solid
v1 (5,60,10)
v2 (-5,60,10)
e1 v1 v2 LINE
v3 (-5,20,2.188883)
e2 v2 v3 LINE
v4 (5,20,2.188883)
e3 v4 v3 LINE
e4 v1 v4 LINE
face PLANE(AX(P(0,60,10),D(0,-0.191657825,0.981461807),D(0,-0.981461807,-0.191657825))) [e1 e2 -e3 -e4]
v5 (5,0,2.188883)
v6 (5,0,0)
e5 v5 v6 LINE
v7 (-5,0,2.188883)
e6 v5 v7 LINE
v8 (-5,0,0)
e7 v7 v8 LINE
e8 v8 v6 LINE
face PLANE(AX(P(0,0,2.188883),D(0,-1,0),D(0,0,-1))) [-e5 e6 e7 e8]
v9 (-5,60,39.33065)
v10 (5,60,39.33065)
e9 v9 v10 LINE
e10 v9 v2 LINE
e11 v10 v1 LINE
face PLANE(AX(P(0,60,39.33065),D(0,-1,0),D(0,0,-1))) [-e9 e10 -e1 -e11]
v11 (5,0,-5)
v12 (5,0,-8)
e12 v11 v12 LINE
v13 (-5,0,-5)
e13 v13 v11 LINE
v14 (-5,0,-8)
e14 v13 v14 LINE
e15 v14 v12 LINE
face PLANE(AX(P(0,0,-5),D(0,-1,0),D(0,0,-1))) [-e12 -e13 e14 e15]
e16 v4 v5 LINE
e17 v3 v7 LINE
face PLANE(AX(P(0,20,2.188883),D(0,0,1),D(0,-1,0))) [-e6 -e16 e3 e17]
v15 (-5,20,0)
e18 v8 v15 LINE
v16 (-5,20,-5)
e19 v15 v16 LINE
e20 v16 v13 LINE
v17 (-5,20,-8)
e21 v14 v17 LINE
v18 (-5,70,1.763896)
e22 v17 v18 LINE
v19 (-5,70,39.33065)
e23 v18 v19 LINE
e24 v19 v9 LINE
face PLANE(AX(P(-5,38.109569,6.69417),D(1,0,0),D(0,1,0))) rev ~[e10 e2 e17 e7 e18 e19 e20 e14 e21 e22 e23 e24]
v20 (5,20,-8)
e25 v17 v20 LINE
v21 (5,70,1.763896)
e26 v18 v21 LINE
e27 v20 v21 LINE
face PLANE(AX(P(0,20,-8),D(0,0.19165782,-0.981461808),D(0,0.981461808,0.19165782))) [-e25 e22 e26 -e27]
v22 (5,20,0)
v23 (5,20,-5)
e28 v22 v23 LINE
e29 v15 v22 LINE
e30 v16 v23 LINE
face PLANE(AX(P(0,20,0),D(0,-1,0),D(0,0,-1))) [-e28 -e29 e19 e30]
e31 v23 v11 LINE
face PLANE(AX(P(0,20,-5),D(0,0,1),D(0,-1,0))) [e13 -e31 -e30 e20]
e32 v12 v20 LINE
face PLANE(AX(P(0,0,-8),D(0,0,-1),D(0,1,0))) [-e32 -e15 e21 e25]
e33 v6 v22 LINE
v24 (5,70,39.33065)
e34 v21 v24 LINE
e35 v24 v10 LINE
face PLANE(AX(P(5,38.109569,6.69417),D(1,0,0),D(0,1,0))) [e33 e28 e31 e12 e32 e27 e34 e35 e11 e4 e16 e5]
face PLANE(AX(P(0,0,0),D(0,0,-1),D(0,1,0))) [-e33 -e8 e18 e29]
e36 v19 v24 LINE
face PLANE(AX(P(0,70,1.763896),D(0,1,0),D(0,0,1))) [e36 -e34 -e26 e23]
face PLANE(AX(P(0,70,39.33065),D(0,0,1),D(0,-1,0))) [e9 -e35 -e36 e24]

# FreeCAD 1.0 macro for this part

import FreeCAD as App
import Part
import Sketcher
from FreeCAD import Vector
Q = App.Units.Quantity

doc = App.newDocument("Part")
body = doc.addObject("PartDesign::Body", "Body")

# Sketch on YZ plane
sketch1 = body.newObject("Sketcher::SketchObject", "Sketch")
sketch1.AttachmentSupport = (doc.getObject("YZ_Plane"), [""])
sketch1.MapMode = "FlatFace"
sketch1.addGeometry(Part.LineSegment(Vector(0, 2.188883, 0), Vector(0, 0, 0)), False)
sketch1.addGeometry(Part.LineSegment(Vector(0, 0, 0), Vector(20, 0, 0)), False)
sketch1.addGeometry(Part.LineSegment(Vector(20, 0, 0), Vector(20, -5, 0)), False)
sketch1.addGeometry(Part.LineSegment(Vector(20, -5, 0), Vector(0, -5, 0)), False)
sketch1.addGeometry(Part.LineSegment(Vector(0, -5, 0), Vector(0, -8, 0)), False)
sketch1.addGeometry(Part.LineSegment(Vector(0, -8, 0), Vector(20, -8, 0)), False)
sketch1.addGeometry(Part.LineSegment(Vector(20, -8, 0), Vector(70, 1.763896, 0)), False)
sketch1.addGeometry(Part.LineSegment(Vector(70, 1.763896, 0), Vector(70, 39.33065, 0)), False)
sketch1.addGeometry(Part.LineSegment(Vector(70, 39.33065, 0), Vector(60, 39.33065, 0)), False)
sketch1.addGeometry(Part.LineSegment(Vector(60, 39.33065, 0), Vector(60, 10, 0)), False)
sketch1.addGeometry(Part.LineSegment(Vector(60, 10, 0), Vector(20, 2.188883, 0)), False)
sketch1.addGeometry(Part.LineSegment(Vector(20, 2.188883, 0), Vector(0, 2.188883, 0)), False)
sketch1.addConstraint(Sketcher.Constraint("Coincident", 0, 2, 1, 1))
sketch1.addConstraint(Sketcher.Constraint("Coincident", 1, 2, 2, 1))
sketch1.addConstraint(Sketcher.Constraint("Coincident", 2, 2, 3, 1))
sketch1.addConstraint(Sketcher.Constraint("Coincident", 3, 2, 4, 1))
sketch1.addConstraint(Sketcher.Constraint("Coincident", 4, 2, 5, 1))
sketch1.addConstraint(Sketcher.Constraint("Coincident", 5, 2, 6, 1))
sketch1.addConstraint(Sketcher.Constraint("Coincident", 6, 2, 7, 1))
sketch1.addConstraint(Sketcher.Constraint("Coincident", 7, 2, 8, 1))
sketch1.addConstraint(Sketcher.Constraint("Coincident", 8, 2, 9, 1))
sketch1.addConstraint(Sketcher.Constraint("Coincident", 9, 2, 10, 1))
sketch1.addConstraint(Sketcher.Constraint("Coincident", 10, 2, 11, 1))
sketch1.addConstraint(Sketcher.Constraint("Coincident", 11, 2, 0, 1))
sketch1.addConstraint(Sketcher.Constraint("Vertical", 0))
sketch1.addConstraint(Sketcher.Constraint("Horizontal", 1))
sketch1.addConstraint(Sketcher.Constraint("Vertical", 2))
sketch1.addConstraint(Sketcher.Constraint("Horizontal", 3))
sketch1.addConstraint(Sketcher.Constraint("Vertical", 4))
sketch1.addConstraint(Sketcher.Constraint("Horizontal", 5))
sketch1.addConstraint(Sketcher.Constraint("Vertical", 7))
sketch1.addConstraint(Sketcher.Constraint("Horizontal", 8))
sketch1.addConstraint(Sketcher.Constraint("Vertical", 9))
sketch1.addConstraint(Sketcher.Constraint("Horizontal", 11))
sketch1.addConstraint(Sketcher.Constraint("Coincident", 0, 2, -1, 1))
sketch1.addConstraint(Sketcher.Constraint("PointOnObject", 3, 2, -2))
sketch1.addConstraint(Sketcher.Constraint("Parallel", 6, 10))
sketch1.addConstraint(Sketcher.Constraint("Vertical", 2, 2, 5, 2))
sketch1.addConstraint(Sketcher.Constraint("Vertical", 5, 2, 10, 2))
sketch1.addConstraint(Sketcher.Constraint("DistanceX", 1, 1, 1, 2, Q("20 mm")))
sketch1.addConstraint(Sketcher.Constraint("DistanceX", 8, 2, 8, 1, Q("10 mm")))
sketch1.addConstraint(Sketcher.Constraint("DistanceY", 2, 2, 2, 1, Q("5 mm")))
sketch1.addConstraint(Sketcher.Constraint("DistanceY", 4, 2, 4, 1, Q("3 mm")))
sketch1.addConstraint(Sketcher.Constraint("DistanceX", -1, 1, 6, 2, Q("70 mm")))
sketch1.addConstraint(Sketcher.Constraint("DistanceY", -1, 1, 9, 2, Q("10 mm")))
sketch1.addConstraint(Sketcher.Constraint("DistanceY", 9, 2, 9, 1, Q("29.33065 mm")))
sketch1.addConstraint(Sketcher.Constraint("DistanceY", 0, 2, 0, 1, Q("2.188883 mm")))
pad1 = body.newObject("PartDesign::Pad", "Pad")
pad1.Profile = sketch1
pad1.Length = 10
pad1.Midplane = True

doc.recompute()
